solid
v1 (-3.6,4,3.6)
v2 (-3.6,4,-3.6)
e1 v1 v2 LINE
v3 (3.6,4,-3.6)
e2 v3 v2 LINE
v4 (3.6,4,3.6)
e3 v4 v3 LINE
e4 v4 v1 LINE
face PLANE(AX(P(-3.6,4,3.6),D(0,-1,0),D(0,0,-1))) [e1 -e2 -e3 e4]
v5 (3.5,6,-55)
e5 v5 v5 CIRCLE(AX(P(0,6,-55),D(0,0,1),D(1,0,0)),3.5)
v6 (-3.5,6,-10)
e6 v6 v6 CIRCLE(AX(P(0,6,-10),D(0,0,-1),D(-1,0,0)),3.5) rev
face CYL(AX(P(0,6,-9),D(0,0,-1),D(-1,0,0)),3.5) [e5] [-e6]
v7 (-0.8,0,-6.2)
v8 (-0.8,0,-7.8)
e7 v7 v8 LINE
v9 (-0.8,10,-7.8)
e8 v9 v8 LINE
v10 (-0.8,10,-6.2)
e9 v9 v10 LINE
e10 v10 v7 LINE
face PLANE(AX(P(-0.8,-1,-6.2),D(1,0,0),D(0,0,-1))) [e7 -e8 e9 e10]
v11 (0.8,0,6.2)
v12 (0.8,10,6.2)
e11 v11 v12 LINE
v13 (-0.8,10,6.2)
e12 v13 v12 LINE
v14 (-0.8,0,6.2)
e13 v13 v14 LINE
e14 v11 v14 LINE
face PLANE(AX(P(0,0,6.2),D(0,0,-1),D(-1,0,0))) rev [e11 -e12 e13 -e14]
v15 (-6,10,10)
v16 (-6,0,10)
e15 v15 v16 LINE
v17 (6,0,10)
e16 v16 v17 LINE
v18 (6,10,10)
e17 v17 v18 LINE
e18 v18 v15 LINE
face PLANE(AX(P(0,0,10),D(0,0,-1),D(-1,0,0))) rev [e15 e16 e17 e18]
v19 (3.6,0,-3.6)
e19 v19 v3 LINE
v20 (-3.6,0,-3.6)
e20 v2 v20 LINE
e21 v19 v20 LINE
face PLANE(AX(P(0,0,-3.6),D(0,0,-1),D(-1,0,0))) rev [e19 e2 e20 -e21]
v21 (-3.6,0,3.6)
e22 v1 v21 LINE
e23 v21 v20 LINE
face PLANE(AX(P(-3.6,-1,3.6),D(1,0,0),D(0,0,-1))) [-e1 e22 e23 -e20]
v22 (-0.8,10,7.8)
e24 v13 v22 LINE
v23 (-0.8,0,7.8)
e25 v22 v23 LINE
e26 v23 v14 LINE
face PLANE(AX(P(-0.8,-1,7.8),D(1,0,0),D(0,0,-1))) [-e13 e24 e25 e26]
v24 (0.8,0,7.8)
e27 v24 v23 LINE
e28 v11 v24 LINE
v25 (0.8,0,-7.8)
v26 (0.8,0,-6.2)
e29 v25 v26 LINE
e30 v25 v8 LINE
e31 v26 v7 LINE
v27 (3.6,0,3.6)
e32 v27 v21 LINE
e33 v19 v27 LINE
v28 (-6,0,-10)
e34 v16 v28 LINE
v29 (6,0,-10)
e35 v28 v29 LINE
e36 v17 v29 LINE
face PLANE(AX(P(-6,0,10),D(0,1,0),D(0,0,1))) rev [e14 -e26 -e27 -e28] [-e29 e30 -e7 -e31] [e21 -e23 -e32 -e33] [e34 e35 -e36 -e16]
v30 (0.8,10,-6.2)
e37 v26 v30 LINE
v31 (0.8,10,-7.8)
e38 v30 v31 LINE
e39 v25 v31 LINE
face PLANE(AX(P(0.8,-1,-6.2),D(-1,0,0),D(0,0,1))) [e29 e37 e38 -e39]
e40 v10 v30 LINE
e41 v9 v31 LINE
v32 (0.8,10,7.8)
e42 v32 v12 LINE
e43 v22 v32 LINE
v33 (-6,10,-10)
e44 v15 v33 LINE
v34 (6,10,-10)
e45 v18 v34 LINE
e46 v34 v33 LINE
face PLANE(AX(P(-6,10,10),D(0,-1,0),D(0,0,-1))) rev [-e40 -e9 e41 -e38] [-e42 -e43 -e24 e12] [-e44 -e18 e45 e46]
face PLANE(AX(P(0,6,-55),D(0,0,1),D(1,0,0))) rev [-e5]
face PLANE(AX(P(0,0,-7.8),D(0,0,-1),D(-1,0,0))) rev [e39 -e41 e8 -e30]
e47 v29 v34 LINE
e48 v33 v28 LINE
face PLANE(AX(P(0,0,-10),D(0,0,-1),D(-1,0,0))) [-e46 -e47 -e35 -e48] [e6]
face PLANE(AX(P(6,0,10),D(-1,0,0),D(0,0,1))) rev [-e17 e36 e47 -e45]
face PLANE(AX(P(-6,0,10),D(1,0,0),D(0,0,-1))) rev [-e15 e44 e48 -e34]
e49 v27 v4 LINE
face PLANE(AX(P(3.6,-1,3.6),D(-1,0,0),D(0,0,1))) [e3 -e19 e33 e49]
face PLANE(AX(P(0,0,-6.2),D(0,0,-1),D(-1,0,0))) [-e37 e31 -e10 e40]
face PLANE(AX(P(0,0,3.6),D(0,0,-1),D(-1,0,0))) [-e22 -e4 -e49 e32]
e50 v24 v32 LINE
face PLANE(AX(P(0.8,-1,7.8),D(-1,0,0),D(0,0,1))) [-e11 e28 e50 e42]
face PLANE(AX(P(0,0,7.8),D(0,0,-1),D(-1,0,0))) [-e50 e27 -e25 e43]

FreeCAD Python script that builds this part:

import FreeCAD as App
import Part
import Sketcher
Q = App.Units.Quantity

doc = App.newDocument("Part")
body = doc.addObject("PartDesign::Body", "Body")

sketch1 = body.newObject("Sketcher::SketchObject", "Sketch")
sketch1.AttachmentSupport = (doc.getObject("XY_Plane"), [""])
sketch1.MapMode = "FlatFace"
sketch1.AttachmentOffset = App.Placement(App.Vector(0, 0, -10), App.Rotation())
sketch1.addGeometry([
    Part.LineSegment(App.Vector(-6, 10, 0), App.Vector(-6, 0, 0)),
    Part.LineSegment(App.Vector(-6, 0, 0), App.Vector(6, 0, 0)),
    Part.LineSegment(App.Vector(6, 0, 0), App.Vector(6, 10, 0)),
    Part.LineSegment(App.Vector(6, 10, 0), App.Vector(-6, 10, 0)),
], False)
sketch1.addConstraint([
    Sketcher.Constraint("Coincident", 0, 2, 1, 1),
    Sketcher.Constraint("Coincident", 1, 2, 2, 1),
    Sketcher.Constraint("Coincident", 2, 2, 3, 1),
    Sketcher.Constraint("Coincident", 3, 2, 0, 1),
    Sketcher.Constraint("Vertical", 0),
    Sketcher.Constraint("Horizontal", 1),
    Sketcher.Constraint("Vertical", 2),
    Sketcher.Constraint("Horizontal", 3),
    Sketcher.Constraint("Symmetric", 0, 2, 1, 2, -1, 1),
    Sketcher.Constraint("DistanceX", 1, 1, 1, 2, Q("12 mm")),
    Sketcher.Constraint("DistanceY", 0, 2, 0, 1, Q("10 mm")),
])
pad1 = body.newObject("PartDesign::Pad", "Pad")
pad1.Profile = sketch1
pad1.Length = 20
body2 = doc.addObject("PartDesign::Body", "Body001")

sketch2 = body2.newObject("Sketcher::SketchObject", "Sketch001")
sketch2.AttachmentSupport = (doc.getObject("XY_Plane001"), [""])
sketch2.MapMode = "FlatFace"
sketch2.AttachmentOffset = App.Placement(App.Vector(0, 0, -3.6), App.Rotation())
sketch2.addGeometry([
    Part.LineSegment(App.Vector(-4, 4, 0), App.Vector(-4, -1, 0)),
    Part.LineSegment(App.Vector(-4, -1, 0), App.Vector(4, -1, 0)),
    Part.LineSegment(App.Vector(4, -1, 0), App.Vector(4, 4, 0)),
    Part.LineSegment(App.Vector(4, 4, 0), App.Vector(-4, 4, 0)),
], False)
sketch2.addConstraint([
    Sketcher.Constraint("Coincident", 0, 2, 1, 1),
    Sketcher.Constraint("Coincident", 1, 2, 2, 1),
    Sketcher.Constraint("Coincident", 2, 2, 3, 1),
    Sketcher.Constraint("Coincident", 3, 2, 0, 1),
    Sketcher.Constraint("Vertical", 0),
    Sketcher.Constraint("Horizontal", 1),
    Sketcher.Constraint("Vertical", 2),
    Sketcher.Constraint("Horizontal", 3),
    Sketcher.Constraint("DistanceY", 0, 2, 0, 1, Q("5 mm")),
    Sketcher.Constraint("DistanceX", 1, 1, 1, 2, Q("7.2 mm")),
    Sketcher.Constraint("DistanceY", 0, 2, -1, 1, Q("1 mm")),
    Sketcher.Constraint("DistanceX", 0, 2, -1, 1, Q("3.6 mm")),
])
pad2 = body2.newObject("PartDesign::Pad", "Pad001")
pad2.Profile = sketch2
pad2.Length = 7.2
doc.recompute()

boolean = body.newObject("PartDesign::Boolean", "Boolean")
boolean.Type = "Cut"
boolean.addObjects([body2])
body3 = doc.addObject("PartDesign::Body", "Body002")

sketch3 = body3.newObject("Sketcher::SketchObject", "Sketch002")
sketch3.AttachmentSupport = (doc.getObject("XY_Plane002"), [""])
sketch3.MapMode = "FlatFace"
sketch3.AttachmentOffset = App.Placement(App.Vector(0, 0, -7.8), App.Rotation())
sketch3.addGeometry([
    Part.LineSegment(App.Vector(-0.8, 11, 0), App.Vector(-0.8, -1, 0)),
    Part.LineSegment(App.Vector(-0.8, -1, 0), App.Vector(0.8, -1, 0)),
    Part.LineSegment(App.Vector(0.8, -1, 0), App.Vector(0.8, 11, 0)),
    Part.LineSegment(App.Vector(0.8, 11, 0), App.Vector(-0.8, 11, 0)),
], False)
sketch3.addConstraint([
    Sketcher.Constraint("Coincident", 0, 2, 1, 1),
    Sketcher.Constraint("Coincident", 1, 2, 2, 1),
    Sketcher.Constraint("Coincident", 2, 2, 3, 1),
    Sketcher.Constraint("Coincident", 3, 2, 0, 1),
    Sketcher.Constraint("Vertical", 0),
    Sketcher.Constraint("Horizontal", 1),
    Sketcher.Constraint("Vertical", 2),
    Sketcher.Constraint("Horizontal", 3),
    Sketcher.Constraint("DistanceY", 0, 2, 0, 1, Q("12 mm")),
    Sketcher.Constraint("DistanceX", 1, 1, 1, 2, Q("1.6 mm")),
    Sketcher.Constraint("DistanceY", 0, 2, -1, 1, Q("1 mm")),
    Sketcher.Constraint("DistanceX", 0, 2, -1, 1, Q("0.8 mm")),
])
pad3 = body3.newObject("PartDesign::Pad", "Pad002")
pad3.Profile = sketch3
pad3.Length = 1.6
doc.recompute()

boolean2 = body.newObject("PartDesign::Boolean", "Boolean001")
boolean2.Type = "Cut"
boolean2.addObjects([body3])
body4 = doc.addObject("PartDesign::Body", "Body003")

sketch4 = body4.newObject("Sketcher::SketchObject", "Sketch003")
sketch4.AttachmentSupport = (doc.getObject("XY_Plane003"), [""])
sketch4.MapMode = "FlatFace"
sketch4.AttachmentOffset = App.Placement(App.Vector(0, 0, 6.2), App.Rotation())
sketch4.addGeometry([
    Part.LineSegment(App.Vector(-0.8, 11, 0), App.Vector(-0.8, -1, 0)),
    Part.LineSegment(App.Vector(-0.8, -1, 0), App.Vector(0.8, -1, 0)),
    Part.LineSegment(App.Vector(0.8, -1, 0), App.Vector(0.8, 11, 0)),
    Part.LineSegment(App.Vector(0.8, 11, 0), App.Vector(-0.8, 11, 0)),
], False)
sketch4.addConstraint([
    Sketcher.Constraint("Coincident", 0, 2, 1, 1),
    Sketcher.Constraint("Coincident", 1, 2, 2, 1),
    Sketcher.Constraint("Coincident", 2, 2, 3, 1),
    Sketcher.Constraint("Coincident", 3, 2, 0, 1),
    Sketcher.Constraint("Vertical", 0),
    Sketcher.Constraint("Horizontal", 1),
    Sketcher.Constraint("Vertical", 2),
    Sketcher.Constraint("Horizontal", 3),
    Sketcher.Constraint("DistanceY", 0, 2, 0, 1, Q("12 mm")),
    Sketcher.Constraint("DistanceX", 1, 1, 1, 2, Q("1.6 mm")),
    Sketcher.Constraint("DistanceY", 0, 2, -1, 1, Q("1 mm")),
    Sketcher.Constraint("DistanceX", 0, 2, -1, 1, Q("0.8 mm")),
])
pad4 = body4.newObject("PartDesign::Pad", "Pad003")
pad4.Profile = sketch4
pad4.Length = 1.6
doc.recompute()

boolean3 = body.newObject("PartDesign::Boolean", "Boolean002")
boolean3.Type = "Cut"
boolean3.addObjects([body4])

sketch5 = body.newObject("Sketcher::SketchObject", "Sketch004")
sketch5.AttachmentSupport = (doc.getObject("XY_Plane"), [""])
sketch5.MapMode = "FlatFace"
sketch5.AttachmentOffset = App.Placement(App.Vector(0, 0, -55), App.Rotation())
sketch5.addGeometry(Part.Circle(App.Vector(0, 6, 0), App.Vector(0, 0, 1), 3.5), False)
sketch5.addConstraint([
    Sketcher.Constraint("PointOnObject", 0, 3, -2),
    Sketcher.Constraint("Diameter", 0, Q("7 mm")),
    Sketcher.Constraint("DistanceY", -1, 1, 0, 3, Q("6 mm")),
])
pad5 = body.newObject("PartDesign::Pad", "Pad004")
pad5.Profile = sketch5
pad5.Length = 46

doc.recompute()
